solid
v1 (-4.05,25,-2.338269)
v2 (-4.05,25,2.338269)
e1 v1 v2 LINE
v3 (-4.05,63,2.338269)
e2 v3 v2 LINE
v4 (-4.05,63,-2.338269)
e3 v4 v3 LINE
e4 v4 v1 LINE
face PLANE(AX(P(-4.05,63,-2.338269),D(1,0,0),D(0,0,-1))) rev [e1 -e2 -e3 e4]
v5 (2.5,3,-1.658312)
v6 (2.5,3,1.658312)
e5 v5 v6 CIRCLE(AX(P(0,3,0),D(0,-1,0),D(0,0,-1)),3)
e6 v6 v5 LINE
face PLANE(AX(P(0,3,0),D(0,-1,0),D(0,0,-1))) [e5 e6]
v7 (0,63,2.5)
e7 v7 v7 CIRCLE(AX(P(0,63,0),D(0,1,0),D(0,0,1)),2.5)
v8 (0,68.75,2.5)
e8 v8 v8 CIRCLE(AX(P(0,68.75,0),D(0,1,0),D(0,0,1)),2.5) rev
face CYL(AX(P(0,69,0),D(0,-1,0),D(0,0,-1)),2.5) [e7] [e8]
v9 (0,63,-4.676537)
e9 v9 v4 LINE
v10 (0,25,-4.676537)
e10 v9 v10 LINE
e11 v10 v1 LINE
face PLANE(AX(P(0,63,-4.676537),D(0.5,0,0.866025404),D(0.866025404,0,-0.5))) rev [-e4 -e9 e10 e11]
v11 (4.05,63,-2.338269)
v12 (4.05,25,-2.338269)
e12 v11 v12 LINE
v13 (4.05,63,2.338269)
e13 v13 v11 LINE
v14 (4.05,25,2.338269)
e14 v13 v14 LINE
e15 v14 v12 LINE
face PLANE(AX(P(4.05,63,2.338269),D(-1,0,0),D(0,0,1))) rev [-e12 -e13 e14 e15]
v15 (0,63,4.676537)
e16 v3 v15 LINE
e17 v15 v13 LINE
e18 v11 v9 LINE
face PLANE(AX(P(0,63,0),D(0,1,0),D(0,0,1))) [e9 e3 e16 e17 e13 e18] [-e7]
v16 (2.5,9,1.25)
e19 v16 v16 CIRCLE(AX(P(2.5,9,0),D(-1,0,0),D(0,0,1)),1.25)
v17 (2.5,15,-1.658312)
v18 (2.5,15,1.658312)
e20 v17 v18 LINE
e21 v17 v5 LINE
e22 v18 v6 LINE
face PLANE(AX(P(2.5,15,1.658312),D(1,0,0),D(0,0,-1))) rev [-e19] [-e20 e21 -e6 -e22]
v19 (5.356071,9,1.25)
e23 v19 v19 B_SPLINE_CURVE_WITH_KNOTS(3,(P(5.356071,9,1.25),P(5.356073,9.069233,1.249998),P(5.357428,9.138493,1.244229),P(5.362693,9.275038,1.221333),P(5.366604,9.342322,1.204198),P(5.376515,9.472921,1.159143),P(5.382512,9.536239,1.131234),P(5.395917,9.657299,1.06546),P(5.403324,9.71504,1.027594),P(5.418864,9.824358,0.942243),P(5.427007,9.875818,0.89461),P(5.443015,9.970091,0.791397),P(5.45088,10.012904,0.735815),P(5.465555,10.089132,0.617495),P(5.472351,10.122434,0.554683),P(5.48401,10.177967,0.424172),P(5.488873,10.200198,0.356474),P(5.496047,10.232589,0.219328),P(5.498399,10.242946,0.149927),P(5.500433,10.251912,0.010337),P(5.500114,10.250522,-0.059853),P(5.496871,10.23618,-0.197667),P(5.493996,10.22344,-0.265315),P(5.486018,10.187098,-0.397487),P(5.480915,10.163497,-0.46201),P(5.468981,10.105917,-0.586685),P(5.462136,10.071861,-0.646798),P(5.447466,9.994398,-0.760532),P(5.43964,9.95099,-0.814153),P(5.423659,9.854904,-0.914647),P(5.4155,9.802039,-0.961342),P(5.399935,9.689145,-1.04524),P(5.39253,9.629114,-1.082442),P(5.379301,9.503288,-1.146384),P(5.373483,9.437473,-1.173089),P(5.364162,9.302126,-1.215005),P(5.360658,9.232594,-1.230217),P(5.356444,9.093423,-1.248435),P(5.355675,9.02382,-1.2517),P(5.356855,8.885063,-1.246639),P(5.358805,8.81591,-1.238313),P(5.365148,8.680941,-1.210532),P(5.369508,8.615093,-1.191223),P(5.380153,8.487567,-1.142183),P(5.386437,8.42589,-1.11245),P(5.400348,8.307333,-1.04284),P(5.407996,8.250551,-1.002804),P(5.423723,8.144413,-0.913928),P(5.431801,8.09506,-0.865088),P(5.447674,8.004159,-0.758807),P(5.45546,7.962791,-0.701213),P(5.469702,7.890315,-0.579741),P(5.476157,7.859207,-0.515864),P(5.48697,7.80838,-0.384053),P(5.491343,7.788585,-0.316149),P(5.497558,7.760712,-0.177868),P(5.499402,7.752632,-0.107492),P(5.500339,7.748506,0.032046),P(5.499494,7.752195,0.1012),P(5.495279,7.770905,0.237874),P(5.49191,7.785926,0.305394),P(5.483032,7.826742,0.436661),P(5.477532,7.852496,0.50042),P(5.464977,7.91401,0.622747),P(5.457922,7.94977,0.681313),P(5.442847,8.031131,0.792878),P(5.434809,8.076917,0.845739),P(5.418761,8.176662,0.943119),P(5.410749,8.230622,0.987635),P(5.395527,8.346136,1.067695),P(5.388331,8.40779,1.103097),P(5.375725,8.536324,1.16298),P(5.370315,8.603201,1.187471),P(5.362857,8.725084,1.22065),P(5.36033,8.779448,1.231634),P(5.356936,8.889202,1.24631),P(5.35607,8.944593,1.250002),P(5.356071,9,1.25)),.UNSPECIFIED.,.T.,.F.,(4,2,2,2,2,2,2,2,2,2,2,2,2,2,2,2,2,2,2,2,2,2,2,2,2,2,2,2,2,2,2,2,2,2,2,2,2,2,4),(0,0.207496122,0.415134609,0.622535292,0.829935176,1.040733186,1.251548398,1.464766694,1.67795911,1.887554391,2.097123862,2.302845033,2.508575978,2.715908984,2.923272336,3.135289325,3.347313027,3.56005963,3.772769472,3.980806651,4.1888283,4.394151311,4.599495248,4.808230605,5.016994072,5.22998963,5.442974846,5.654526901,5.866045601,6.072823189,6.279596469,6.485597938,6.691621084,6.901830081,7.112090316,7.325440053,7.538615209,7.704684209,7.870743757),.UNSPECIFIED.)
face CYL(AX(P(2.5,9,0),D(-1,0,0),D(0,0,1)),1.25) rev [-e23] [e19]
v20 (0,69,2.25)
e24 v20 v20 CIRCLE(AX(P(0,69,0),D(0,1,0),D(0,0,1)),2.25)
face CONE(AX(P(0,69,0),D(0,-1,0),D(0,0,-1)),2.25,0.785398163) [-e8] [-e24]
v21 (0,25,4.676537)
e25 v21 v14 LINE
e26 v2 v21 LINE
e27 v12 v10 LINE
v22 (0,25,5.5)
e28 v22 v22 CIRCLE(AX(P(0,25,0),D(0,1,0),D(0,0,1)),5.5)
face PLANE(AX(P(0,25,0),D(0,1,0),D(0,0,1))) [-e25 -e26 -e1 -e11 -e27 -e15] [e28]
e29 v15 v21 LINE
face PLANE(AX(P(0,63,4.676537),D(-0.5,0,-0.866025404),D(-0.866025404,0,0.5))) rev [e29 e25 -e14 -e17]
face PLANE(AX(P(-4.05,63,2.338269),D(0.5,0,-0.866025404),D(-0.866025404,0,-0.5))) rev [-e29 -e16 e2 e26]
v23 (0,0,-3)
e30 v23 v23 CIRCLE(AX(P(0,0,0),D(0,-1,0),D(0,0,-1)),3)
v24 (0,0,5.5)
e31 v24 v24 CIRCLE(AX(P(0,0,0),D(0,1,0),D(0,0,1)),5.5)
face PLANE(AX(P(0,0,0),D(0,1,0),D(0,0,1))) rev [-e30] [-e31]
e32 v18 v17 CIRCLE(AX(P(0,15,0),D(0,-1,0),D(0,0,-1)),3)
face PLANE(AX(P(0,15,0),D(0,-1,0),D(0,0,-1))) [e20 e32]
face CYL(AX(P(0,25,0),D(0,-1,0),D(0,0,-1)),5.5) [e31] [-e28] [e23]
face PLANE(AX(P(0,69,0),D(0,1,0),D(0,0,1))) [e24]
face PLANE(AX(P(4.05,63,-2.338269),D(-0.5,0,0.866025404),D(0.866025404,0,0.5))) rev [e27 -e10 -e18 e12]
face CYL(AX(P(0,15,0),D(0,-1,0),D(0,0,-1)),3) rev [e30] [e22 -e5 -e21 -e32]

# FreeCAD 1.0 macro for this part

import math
import FreeCAD as App
import Part
import Sketcher
Q = App.Units.Quantity


def edges_at(feature, points):
    """Names of the edges that pass closest to the given points."""
    edges = feature.Shape.Edges
    near = lambda p: min(range(len(edges)), key=lambda i: edges[i].distToShape(Part.Vertex(*p))[0])
    return sorted({f"Edge{near(p) + 1}" for p in points})

doc = App.newDocument("Part")
body = doc.addObject("PartDesign::Body", "Body")

# Sketch on XZ plane
sketch1 = body.newObject("Sketcher::SketchObject", "Sketch")
sketch1.AttachmentSupport = (doc.getObject("XZ_Plane"), [""])
sketch1.MapMode = "FlatFace"
sketch1.addGeometry(Part.Circle(App.Vector(0, 0, 0), App.Vector(0, 0, 1), 5.5), False)
sketch1.addConstraint(Sketcher.Constraint("Coincident", 0, 3, -1, 1))
sketch1.addConstraint(Sketcher.Constraint("Diameter", 0, Q("11 mm")))
pad1 = body.newObject("PartDesign::Pad", "Pad")
pad1.Profile = sketch1
pad1.Length = 25
pad1.Reversed = True

# Sketch on XZ plane
sketch2 = body.newObject("Sketcher::SketchObject", "Sketch001")
sketch2.AttachmentSupport = (doc.getObject("XZ_Plane"), [""])
sketch2.MapMode = "FlatFace"
sketch2.AttachmentOffset = App.Placement(App.Vector(0, 0, -25), App.Rotation())
sketch2.addGeometry(Part.LineSegment(App.Vector(0, 4.676537, 0), App.Vector(4.05, 2.338269, 0)), False)
sketch2.addGeometry(Part.LineSegment(App.Vector(4.05, 2.338269, 0), App.Vector(4.05, -2.338269, 0)), False)
sketch2.addGeometry(Part.LineSegment(App.Vector(4.05, -2.338269, 0), App.Vector(0, -4.676537, 0)), False)
sketch2.addGeometry(Part.LineSegment(App.Vector(0, -4.676537, 0), App.Vector(-4.05, -2.338269, 0)), False)
sketch2.addGeometry(Part.LineSegment(App.Vector(-4.05, -2.338269, 0), App.Vector(-4.05, 2.338269, 0)), False)
sketch2.addGeometry(Part.LineSegment(App.Vector(-4.05, 2.338269, 0), App.Vector(0, 4.676537, 0)), False)
sketch2.addConstraint(Sketcher.Constraint("Coincident", 0, 2, 1, 1))
sketch2.addConstraint(Sketcher.Constraint("Coincident", 1, 2, 2, 1))
sketch2.addConstraint(Sketcher.Constraint("Coincident", 2, 2, 3, 1))
sketch2.addConstraint(Sketcher.Constraint("Coincident", 3, 2, 4, 1))
sketch2.addConstraint(Sketcher.Constraint("Coincident", 4, 2, 5, 1))
sketch2.addConstraint(Sketcher.Constraint("Coincident", 5, 2, 0, 1))
sketch2.addConstraint(Sketcher.Constraint("Vertical", 1))
sketch2.addConstraint(Sketcher.Constraint("Vertical", 4))
sketch2.addConstraint(Sketcher.Constraint("Symmetric", 0, 2, 3, 2, -1, 1))
sketch2.addConstraint(Sketcher.Constraint("Symmetric", 2, 2, 5, 2, -1, 1))
sketch2.addConstraint(Sketcher.Constraint("PointOnObject", 2, 2, -2))
sketch2.addConstraint(Sketcher.Constraint("Parallel", 2, 5))
sketch2.addConstraint(Sketcher.Constraint("Horizontal", 1, 2, 3, 2))
sketch2.addConstraint(Sketcher.Constraint("Angle", 0, Q("-30 deg")))
sketch2.addConstraint(Sketcher.Constraint("DistanceX", 3, 2, 1, 2, Q("8.1 mm")))
sketch2.addConstraint(Sketcher.Constraint("DistanceY", 1, 2, 1, 1, Q("4.676537 mm")))
pad2 = body.newObject("PartDesign::Pad", "Pad001")
pad2.Profile = sketch2
pad2.Length = 38
pad2.Reversed = True

# Sketch on XZ plane
sketch3 = body.newObject("Sketcher::SketchObject", "Sketch002")
sketch3.AttachmentSupport = (doc.getObject("XZ_Plane"), [""])
sketch3.MapMode = "FlatFace"
sketch3.AttachmentOffset = App.Placement(App.Vector(0, 0, -63), App.Rotation())
sketch3.addGeometry(Part.Circle(App.Vector(0, 0, 0), App.Vector(0, 0, 1), 2.5), False)
sketch3.addConstraint(Sketcher.Constraint("Coincident", 0, 3, -1, 1))
sketch3.addConstraint(Sketcher.Constraint("Diameter", 0, Q("5 mm")))
pad3 = body.newObject("PartDesign::Pad", "Pad002")
pad3.Profile = sketch3
pad3.Length = 6
pad3.Reversed = True
doc.recompute()

chamfer = body.newObject("PartDesign::Chamfer", "Chamfer")
chamfer.Base = (pad3, edges_at(pad3, [(0, 69, -2.5)]))
chamfer.Size = 0.25

# Sketch on XZ plane
sketch4 = body.newObject("Sketcher::SketchObject", "Sketch003")
sketch4.AttachmentSupport = (doc.getObject("XZ_Plane"), [""])
sketch4.MapMode = "FlatFace"
sketch4.addGeometry(Part.LineSegment(App.Vector(2.5, -1.658312, 0), App.Vector(2.5, 1.658312, 0)), False)
sketch4.addGeometry(Part.ArcOfCircle(Part.Circle(App.Vector(0, 0, 0), App.Vector(0, 0, 1), 3), math.radians(33.55731), math.radians(326.44269)), False)
sketch4.addConstraint(Sketcher.Constraint("Coincident", 0, 1, 1, 2))
sketch4.addConstraint(Sketcher.Constraint("Coincident", 1, 1, 0, 2))
sketch4.addConstraint(Sketcher.Constraint("Vertical", 0))
sketch4.addConstraint(Sketcher.Constraint("Coincident", 1, 3, -1, 1))
sketch4.addConstraint(Sketcher.Constraint("Radius", 1, Q("3 mm")))
sketch4.addConstraint(Sketcher.Constraint("DistanceX", -1, 1, 0, 1, Q("2.5 mm")))
pocket1 = body.newObject("PartDesign::Pocket", "Pocket")
pocket1.Profile = sketch4
pocket1.Length = 15

# Sketch on XZ plane
sketch5 = body.newObject("Sketcher::SketchObject", "Sketch004")
sketch5.AttachmentSupport = (doc.getObject("XZ_Plane"), [""])
sketch5.MapMode = "FlatFace"
sketch5.addGeometry(Part.Circle(App.Vector(0, 0, 0), App.Vector(0, 0, 1), 3), False)
sketch5.addConstraint(Sketcher.Constraint("Coincident", 0, 3, -1, 1))
sketch5.addConstraint(Sketcher.Constraint("Diameter", 0, Q("6 mm")))
pocket2 = body.newObject("PartDesign::Pocket", "Pocket001")
pocket2.Profile = sketch5
pocket2.Length = 3

# Sketch on YZ plane
sketch6 = body.newObject("Sketcher::SketchObject", "Sketch005")
sketch6.AttachmentSupport = (doc.getObject("YZ_Plane"), [""])
sketch6.MapMode = "FlatFace"
sketch6.AttachmentOffset = App.Placement(App.Vector(0, 0, 2.5), App.Rotation())
sketch6.addGeometry(Part.Circle(App.Vector(9, 0, 0), App.Vector(0, 0, 1), 1.25), False)
sketch6.addConstraint(Sketcher.Constraint("PointOnObject", 0, 3, -1))
sketch6.addConstraint(Sketcher.Constraint("Diameter", 0, Q("2.5 mm")))
sketch6.addConstraint(Sketcher.Constraint("DistanceX", -1, 1, 0, 3, Q("9 mm")))
doc.recompute()
hole = body.newObject("PartDesign::Hole", "Hole")
hole.Profile = sketch6
hole.ThreadType = "None"
hole.Diameter = 2.5
hole.DepthType = "Dimension"
hole.Depth = 3
hole.DrillPoint = "Flat"
hole.Reversed = True

doc.recompute()
